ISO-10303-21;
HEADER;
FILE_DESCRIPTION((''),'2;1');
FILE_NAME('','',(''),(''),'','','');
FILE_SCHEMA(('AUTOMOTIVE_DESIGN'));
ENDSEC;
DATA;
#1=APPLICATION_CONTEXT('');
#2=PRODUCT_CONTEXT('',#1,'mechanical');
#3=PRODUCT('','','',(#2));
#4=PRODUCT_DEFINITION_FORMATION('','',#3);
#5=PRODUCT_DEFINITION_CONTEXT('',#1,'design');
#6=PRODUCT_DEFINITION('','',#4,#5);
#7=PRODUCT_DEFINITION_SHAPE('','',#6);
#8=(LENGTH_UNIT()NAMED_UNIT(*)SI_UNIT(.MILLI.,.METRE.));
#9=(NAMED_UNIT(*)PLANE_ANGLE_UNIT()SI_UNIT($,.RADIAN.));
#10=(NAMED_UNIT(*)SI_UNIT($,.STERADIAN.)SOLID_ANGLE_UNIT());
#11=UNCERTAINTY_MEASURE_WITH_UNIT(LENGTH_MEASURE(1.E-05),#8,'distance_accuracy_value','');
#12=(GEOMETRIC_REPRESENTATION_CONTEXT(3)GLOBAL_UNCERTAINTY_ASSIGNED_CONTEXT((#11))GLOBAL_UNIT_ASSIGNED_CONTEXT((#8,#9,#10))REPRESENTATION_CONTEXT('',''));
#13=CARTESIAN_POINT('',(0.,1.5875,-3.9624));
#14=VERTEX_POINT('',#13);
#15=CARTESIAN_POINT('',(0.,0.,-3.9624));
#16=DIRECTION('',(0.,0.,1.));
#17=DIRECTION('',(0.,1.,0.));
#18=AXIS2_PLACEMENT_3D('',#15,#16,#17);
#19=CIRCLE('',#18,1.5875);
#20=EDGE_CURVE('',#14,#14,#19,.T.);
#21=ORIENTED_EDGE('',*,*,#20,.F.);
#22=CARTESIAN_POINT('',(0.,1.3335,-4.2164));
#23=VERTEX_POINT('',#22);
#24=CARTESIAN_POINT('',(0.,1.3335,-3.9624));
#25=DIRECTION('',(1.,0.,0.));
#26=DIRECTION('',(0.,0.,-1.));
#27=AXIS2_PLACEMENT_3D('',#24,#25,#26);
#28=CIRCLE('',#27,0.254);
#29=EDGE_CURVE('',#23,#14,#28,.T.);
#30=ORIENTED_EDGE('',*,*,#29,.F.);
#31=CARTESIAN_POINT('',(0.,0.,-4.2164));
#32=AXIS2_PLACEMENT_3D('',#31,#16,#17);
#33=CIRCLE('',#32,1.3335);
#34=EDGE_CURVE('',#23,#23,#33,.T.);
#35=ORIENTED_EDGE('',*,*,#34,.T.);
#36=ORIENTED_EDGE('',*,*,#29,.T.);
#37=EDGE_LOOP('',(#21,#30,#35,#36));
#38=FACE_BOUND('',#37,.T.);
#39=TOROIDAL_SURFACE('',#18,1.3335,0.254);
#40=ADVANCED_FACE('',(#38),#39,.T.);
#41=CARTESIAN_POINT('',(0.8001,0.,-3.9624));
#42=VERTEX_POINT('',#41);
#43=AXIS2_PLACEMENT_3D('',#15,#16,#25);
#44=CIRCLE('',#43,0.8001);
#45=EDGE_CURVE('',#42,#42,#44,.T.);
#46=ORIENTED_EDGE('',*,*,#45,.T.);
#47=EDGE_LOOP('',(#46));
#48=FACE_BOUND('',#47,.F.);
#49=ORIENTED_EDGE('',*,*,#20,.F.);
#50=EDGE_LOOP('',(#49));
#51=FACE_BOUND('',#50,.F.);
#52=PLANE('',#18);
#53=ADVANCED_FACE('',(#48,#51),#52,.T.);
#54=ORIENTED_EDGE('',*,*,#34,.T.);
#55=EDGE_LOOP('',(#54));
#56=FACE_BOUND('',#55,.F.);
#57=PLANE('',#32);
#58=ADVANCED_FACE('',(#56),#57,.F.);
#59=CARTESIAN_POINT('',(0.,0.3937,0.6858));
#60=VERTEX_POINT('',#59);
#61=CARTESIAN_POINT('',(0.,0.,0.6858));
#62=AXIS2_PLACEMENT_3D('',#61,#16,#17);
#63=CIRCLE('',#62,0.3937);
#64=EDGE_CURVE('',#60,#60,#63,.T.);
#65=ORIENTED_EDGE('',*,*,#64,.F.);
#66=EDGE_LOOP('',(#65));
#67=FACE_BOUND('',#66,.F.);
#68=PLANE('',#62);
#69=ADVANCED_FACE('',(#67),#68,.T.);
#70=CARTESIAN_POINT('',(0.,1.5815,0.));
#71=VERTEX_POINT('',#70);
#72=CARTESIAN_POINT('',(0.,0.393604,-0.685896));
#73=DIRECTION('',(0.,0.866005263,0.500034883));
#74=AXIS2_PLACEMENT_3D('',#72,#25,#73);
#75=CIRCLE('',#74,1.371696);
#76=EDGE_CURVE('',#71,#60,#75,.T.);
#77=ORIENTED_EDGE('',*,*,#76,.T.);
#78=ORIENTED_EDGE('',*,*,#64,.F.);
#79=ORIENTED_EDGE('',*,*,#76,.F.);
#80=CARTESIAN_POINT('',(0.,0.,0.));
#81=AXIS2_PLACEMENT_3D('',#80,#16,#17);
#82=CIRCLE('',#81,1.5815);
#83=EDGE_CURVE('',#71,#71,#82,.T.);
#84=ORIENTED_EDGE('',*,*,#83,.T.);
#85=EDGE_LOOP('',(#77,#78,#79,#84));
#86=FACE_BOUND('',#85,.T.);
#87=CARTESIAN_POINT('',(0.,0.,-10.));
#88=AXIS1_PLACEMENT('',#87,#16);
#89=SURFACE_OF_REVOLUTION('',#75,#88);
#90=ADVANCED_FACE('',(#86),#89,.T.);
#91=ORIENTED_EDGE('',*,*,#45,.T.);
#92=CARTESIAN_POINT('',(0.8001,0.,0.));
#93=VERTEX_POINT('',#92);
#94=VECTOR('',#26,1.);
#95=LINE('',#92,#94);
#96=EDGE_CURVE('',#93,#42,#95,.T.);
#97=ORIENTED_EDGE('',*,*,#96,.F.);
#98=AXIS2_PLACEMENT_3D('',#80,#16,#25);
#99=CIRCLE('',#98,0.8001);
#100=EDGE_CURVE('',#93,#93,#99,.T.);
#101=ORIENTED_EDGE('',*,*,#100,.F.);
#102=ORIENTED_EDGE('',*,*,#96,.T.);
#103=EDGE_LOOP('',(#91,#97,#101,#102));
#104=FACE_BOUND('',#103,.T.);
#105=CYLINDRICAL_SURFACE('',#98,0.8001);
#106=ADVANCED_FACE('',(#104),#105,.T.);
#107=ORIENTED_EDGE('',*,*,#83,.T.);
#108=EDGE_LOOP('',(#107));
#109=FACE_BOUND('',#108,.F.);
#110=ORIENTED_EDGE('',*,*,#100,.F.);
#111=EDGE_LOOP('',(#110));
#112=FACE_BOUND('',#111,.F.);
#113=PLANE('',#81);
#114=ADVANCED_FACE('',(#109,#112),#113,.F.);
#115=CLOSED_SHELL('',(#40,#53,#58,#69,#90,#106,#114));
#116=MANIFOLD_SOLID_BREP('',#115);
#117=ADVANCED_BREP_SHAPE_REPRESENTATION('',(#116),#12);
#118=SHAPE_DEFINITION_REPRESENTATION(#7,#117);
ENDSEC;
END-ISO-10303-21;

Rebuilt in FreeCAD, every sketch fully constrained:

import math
import FreeCAD as App
import Part
import Sketcher

V = App.Vector
Q = App.Units.Quantity

doc = App.newDocument("Part")
body = doc.addObject("PartDesign::Body", "Body")

# Sketch on XY plane
sketch1 = body.newObject("Sketcher::SketchObject", "Sketch")
sketch1.AttachmentSupport = (doc.getObject("XY_Plane"), [""])
sketch1.MapMode = "FlatFace"
sketch1.addGeometry(Part.Circle(V(0, 0, 0), V(0, 0, 1), 0.8), False)
sketch1.addConstraint(Sketcher.Constraint("Coincident", 0, 3, -1, 1))
sketch1.addConstraint(Sketcher.Constraint("Diameter", 0, Q("0.063 in")))
pad1 = body.newObject("PartDesign::Pad", "Pad")
pad1.Profile = sketch1
pad1.Length = Q("0.156 in")
pad1.Reversed = True

# Sketch on YZ plane
sketch2 = body.newObject("Sketcher::SketchObject", "Sketch001")
sketch2.AttachmentSupport = (doc.getObject("YZ_Plane"), [""])
sketch2.MapMode = "FlatFace"
sketch2.addGeometry(Part.LineSegment(V(1.59, -3.96, 0), V(0, -3.96, 0)), False)
sketch2.addGeometry(Part.LineSegment(V(0, -3.96, 0), V(0, -4.22, 0)), False)
sketch2.addGeometry(Part.LineSegment(V(0, -4.22, 0), V(1.33, -4.22, 0)), False)
sketch2.addGeometry(Part.ArcOfCircle(Part.Circle(V(1.33, -3.96, 0), V(0, 0, 1), 0.25), math.radians(-90), math.radians(0)), False)
sketch2.addConstraint(Sketcher.Constraint("Coincident", 0, 2, 1, 1))
sketch2.addConstraint(Sketcher.Constraint("Coincident", 1, 2, 2, 1))
sketch2.addConstraint(Sketcher.Constraint("Tangent", 2, 2, 3, 1))
sketch2.addConstraint(Sketcher.Constraint("Coincident", 3, 2, 0, 1))
sketch2.addConstraint(Sketcher.Constraint("Horizontal", 0))
sketch2.addConstraint(Sketcher.Constraint("Vertical", 1))
sketch2.addConstraint(Sketcher.Constraint("Horizontal", 2))
sketch2.addConstraint(Sketcher.Constraint("PointOnObject", 0, 2, -2))
sketch2.addConstraint(Sketcher.Constraint("Horizontal", 3, 3, 0, 2))
sketch2.addConstraint(Sketcher.Constraint("Radius", 3, Q("0.01 in")))
sketch2.addConstraint(Sketcher.Constraint("DistanceY", 3, 3, -1, 1, Q("0.156 in")))
sketch2.addConstraint(Sketcher.Constraint("DistanceX", 0, 2, 0, 1, Q("0.0625 in")))
revolution = body.newObject("PartDesign::Revolution", "Revolution")
revolution.Profile = sketch2
revolution.ReferenceAxis = (sketch2, ["V_Axis"])
revolution.Angle = 360

# Sketch on YZ plane
sketch3 = body.newObject("Sketcher::SketchObject", "Sketch002")
sketch3.AttachmentSupport = (doc.getObject("YZ_Plane"), [""])
sketch3.MapMode = "FlatFace"
sketch3.addGeometry(Part.LineSegment(V(0, 0.69, 0), V(0, 0, 0)), False)
sketch3.addGeometry(Part.LineSegment(V(0, 0, 0), V(1.58, 0, 0)), False)
sketch3.addGeometry(Part.ArcOfCircle(Part.Circle(V(0.39, -0.69, 0), V(0, 0, 1), 1.37), math.radians(30), math.radians(90)), False)
sketch3.addGeometry(Part.LineSegment(V(0.39, 0.69, 0), V(0, 0.69, 0)), False)
sketch3.addConstraint(Sketcher.Constraint("Coincident", 0, 2, 1, 1))
sketch3.addConstraint(Sketcher.Constraint("Coincident", 1, 2, 2, 1))
sketch3.addConstraint(Sketcher.Constraint("Tangent", 2, 2, 3, 1))
sketch3.addConstraint(Sketcher.Constraint("Coincident", 3, 2, 0, 1))
sketch3.addConstraint(Sketcher.Constraint("Vertical", 0))
sketch3.addConstraint(Sketcher.Constraint("Horizontal", 1))
sketch3.addConstraint(Sketcher.Constraint("Horizontal", 3))
sketch3.addConstraint(Sketcher.Constraint("Coincident", 0, 2, -1, 1))
sketch3.addConstraint(Sketcher.Constraint("Radius", 2, Q("0.054 in")))
sketch3.addConstraint(Sketcher.Constraint("DistanceY", 0, 2, 0, 1, Q("0.027 in")))
sketch3.addConstraint(Sketcher.Constraint("DistanceX", 3, 2, 3, 1, Q("0.0155 in")))
revolution2 = body.newObject("PartDesign::Revolution", "Revolution001")
revolution2.Profile = sketch3
revolution2.ReferenceAxis = (sketch3, ["V_Axis"])
revolution2.Angle = 360

doc.recompute()
